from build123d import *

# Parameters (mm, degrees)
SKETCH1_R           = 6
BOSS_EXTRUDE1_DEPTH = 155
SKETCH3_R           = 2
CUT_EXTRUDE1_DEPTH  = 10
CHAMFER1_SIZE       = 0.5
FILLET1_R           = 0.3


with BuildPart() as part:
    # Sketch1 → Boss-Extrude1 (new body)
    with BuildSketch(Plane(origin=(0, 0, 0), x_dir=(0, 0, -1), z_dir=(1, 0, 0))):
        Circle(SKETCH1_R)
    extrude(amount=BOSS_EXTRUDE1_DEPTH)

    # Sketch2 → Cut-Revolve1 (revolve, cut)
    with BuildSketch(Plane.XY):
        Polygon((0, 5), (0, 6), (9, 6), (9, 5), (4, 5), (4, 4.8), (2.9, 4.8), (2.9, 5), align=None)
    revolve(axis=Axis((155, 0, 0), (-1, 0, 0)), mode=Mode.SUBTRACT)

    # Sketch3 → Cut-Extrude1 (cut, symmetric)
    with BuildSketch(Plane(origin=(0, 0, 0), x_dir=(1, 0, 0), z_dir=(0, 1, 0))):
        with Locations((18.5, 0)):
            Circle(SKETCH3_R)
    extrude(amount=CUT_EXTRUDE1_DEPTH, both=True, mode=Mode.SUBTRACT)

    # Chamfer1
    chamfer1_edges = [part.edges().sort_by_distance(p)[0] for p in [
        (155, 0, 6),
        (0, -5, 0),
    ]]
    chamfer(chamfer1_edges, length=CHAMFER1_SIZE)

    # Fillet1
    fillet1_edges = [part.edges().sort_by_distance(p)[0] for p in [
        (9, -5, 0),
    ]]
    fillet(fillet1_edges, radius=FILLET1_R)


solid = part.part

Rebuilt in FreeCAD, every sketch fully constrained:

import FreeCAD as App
import Part
import Sketcher

V = App.Vector


def edges_at(feature, points):
    """Names of the edges that pass closest to the given points."""
    edges = feature.Shape.Edges
    near = lambda p: min(range(len(edges)), key=lambda i: edges[i].distToShape(Part.Vertex(*p))[0])
    return sorted({f"Edge{near(p) + 1}" for p in points})


def add_polygon(sketch, points):
    """Adds a closed chain of lines whose ends are joined by coincident constraints."""
    first, n = sketch.GeometryCount, len(points)
    for a, b in zip(points, points[1:] + points[:1]):
        sketch.addGeometry(Part.LineSegment(App.Vector(*a, 0), App.Vector(*b, 0)), False)
    for i in range(n):
        sketch.addConstraint(Sketcher.Constraint("Coincident", first + i, 2, first + (i + 1) % n, 1))

doc = App.newDocument("Part")
body = doc.addObject("PartDesign::Body", "Body")

sketch1 = body.newObject("Sketcher::SketchObject", "Sketch")
sketch1.AttachmentSupport = (doc.getObject("YZ_Plane"), [""])
sketch1.MapMode = "FlatFace"
sketch1.addGeometry(Part.Circle(V(0, 0, 0), V(0, 0, 1), 6), False)
sketch1.addConstraint([
    Sketcher.Constraint("Coincident", 0, 3, -1, 1),
    Sketcher.Constraint("Diameter", 0, 12.0),
])
pad1 = body.newObject("PartDesign::Pad", "Pad")
pad1.Profile = sketch1
pad1.Length = 155

sketch2 = body.newObject("Sketcher::SketchObject", "Sketch001")
sketch2.AttachmentSupport = (doc.getObject("XY_Plane"), [""])
sketch2.MapMode = "FlatFace"
add_polygon(sketch2, [(0, 6), (0, 5), (2.9, 5), (2.9, 4.8), (4, 4.8), (4, 5), (9, 5), (9, 6)])
sketch2.addConstraint([
    Sketcher.Constraint("Vertical", 0),
    Sketcher.Constraint("Horizontal", 1),
    Sketcher.Constraint("Vertical", 2),
    Sketcher.Constraint("Horizontal", 3),
    Sketcher.Constraint("Vertical", 4),
    Sketcher.Constraint("Horizontal", 5),
    Sketcher.Constraint("Vertical", 6),
    Sketcher.Constraint("Horizontal", 7),
    Sketcher.Constraint("PointOnObject", 0, 2, -2),
    Sketcher.Constraint("Horizontal", 1, 2, 4, 2),
    Sketcher.Constraint("DistanceX", 5, 1, 5, 2, 5.0),
    Sketcher.Constraint("DistanceX", 7, 2, 7, 1, 9.0),
    Sketcher.Constraint("DistanceY", 0, 2, 0, 1, 1.0),
    Sketcher.Constraint("DistanceX", 1, 1, 1, 2, 2.9),
    Sketcher.Constraint("DistanceY", 2, 2, 2, 1, 0.2),
    Sketcher.Constraint("DistanceY", -1, 1, 0, 2, 5.0),
])
groove = body.newObject("PartDesign::Groove", "Groove")
groove.Profile = sketch2
groove.ReferenceAxis = (sketch2, ["H_Axis"])
groove.Angle = 360

sketch3 = body.newObject("Sketcher::SketchObject", "Sketch002")
sketch3.AttachmentSupport = (doc.getObject("XZ_Plane"), [""])
sketch3.MapMode = "FlatFace"
sketch3.addGeometry(Part.Circle(V(18.5, 0, 0), V(0, 0, 1), 2), False)
sketch3.addConstraint([
    Sketcher.Constraint("PointOnObject", 0, 3, -1),
    Sketcher.Constraint("Diameter", 0, 4.0),
    Sketcher.Constraint("DistanceX", -1, 1, 0, 3, 18.5),
])
pocket1 = body.newObject("PartDesign::Pocket", "Pocket")
pocket1.Profile = sketch3
pocket1.Length = 20
pocket1.Midplane = True
doc.recompute()

chamfer = body.newObject("PartDesign::Chamfer", "Chamfer")
chamfer.Base = (pocket1, edges_at(pocket1, [(155, 0, 6), (0, -5, 0)]))
chamfer.Size = 0.5
doc.recompute()

fillet = body.newObject("PartDesign::Fillet", "Fillet")
fillet.Base = (chamfer, edges_at(chamfer, [(9, -5, 0)]))
fillet.Radius = 0.3

doc.recompute()
